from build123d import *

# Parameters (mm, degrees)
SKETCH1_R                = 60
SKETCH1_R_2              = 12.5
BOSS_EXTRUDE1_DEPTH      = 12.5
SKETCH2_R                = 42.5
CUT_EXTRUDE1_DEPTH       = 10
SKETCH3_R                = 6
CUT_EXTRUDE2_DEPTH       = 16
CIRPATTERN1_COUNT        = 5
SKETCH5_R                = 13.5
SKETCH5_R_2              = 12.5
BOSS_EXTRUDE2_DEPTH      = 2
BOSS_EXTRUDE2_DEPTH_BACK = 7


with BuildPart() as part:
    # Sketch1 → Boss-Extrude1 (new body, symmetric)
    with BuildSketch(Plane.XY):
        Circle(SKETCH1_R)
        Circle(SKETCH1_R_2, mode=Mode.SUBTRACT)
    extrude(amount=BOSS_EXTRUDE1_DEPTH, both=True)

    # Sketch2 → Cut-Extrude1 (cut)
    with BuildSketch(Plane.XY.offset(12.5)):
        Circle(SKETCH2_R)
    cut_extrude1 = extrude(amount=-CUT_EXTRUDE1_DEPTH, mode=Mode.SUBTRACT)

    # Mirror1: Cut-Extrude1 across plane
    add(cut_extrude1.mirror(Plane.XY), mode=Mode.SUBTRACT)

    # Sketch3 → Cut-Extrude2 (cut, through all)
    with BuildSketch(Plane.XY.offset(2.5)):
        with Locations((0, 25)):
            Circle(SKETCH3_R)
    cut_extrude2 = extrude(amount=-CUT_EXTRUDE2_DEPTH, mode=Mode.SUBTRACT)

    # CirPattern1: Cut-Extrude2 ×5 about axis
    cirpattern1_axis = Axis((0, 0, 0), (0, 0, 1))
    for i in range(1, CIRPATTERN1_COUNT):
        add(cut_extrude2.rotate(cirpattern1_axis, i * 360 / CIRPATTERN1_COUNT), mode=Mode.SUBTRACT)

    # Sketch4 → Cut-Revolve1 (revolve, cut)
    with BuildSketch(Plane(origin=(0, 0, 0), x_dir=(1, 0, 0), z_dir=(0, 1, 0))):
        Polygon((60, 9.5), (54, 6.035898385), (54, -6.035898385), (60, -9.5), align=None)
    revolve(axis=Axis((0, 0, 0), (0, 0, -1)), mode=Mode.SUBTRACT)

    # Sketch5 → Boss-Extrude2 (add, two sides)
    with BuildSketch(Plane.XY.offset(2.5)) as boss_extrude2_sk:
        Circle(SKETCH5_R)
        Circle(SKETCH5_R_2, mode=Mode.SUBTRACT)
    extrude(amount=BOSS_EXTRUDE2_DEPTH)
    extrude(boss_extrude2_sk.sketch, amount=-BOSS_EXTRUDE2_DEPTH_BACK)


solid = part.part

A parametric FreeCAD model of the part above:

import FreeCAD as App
import Part
import Sketcher
Q = App.Units.Quantity


def add_polygon(sketch, points):
    """Adds a closed chain of lines whose ends are joined by coincident constraints."""
    first, n = sketch.GeometryCount, len(points)
    for a, b in zip(points, points[1:] + points[:1]):
        sketch.addGeometry(Part.LineSegment(App.Vector(*a, 0), App.Vector(*b, 0)), False)
    for i in range(n):
        sketch.addConstraint(Sketcher.Constraint("Coincident", first + i, 2, first + (i + 1) % n, 1))

doc = App.newDocument("Part")
body = doc.addObject("PartDesign::Body", "Body")

sketch1 = doc.addObject("Sketcher::SketchObject", "Sketch")
body.addObject(sketch1)
sketch1.AttachmentSupport = (doc.XY_Plane, [""])
sketch1.MapMode = "FlatFace"
sketch1.addGeometry([
    Part.Circle(App.Vector(0, 0, 0), App.Vector(0, 0, 1), 60),
    Part.Circle(App.Vector(0, 0, 0), App.Vector(0, 0, 1), 12),
], False)
sketch1.addConstraint([
    Sketcher.Constraint("Coincident", 0, 3, -1, 1),
    Sketcher.Constraint("Coincident", 1, 3, -1, 1),
    Sketcher.Constraint("Diameter", 0, 120.0),
    Sketcher.Constraint("Diameter", 1, 25.0),
])
pad1 = doc.addObject("PartDesign::Pad", "Pad")
body.addObject(pad1)
pad1.Profile = sketch1
pad1.Length = 25
pad1.Midplane = True

sketch2 = doc.addObject("Sketcher::SketchObject", "Sketch001")
body.addObject(sketch2)
sketch2.AttachmentSupport = (doc.XY_Plane, [""])
sketch2.MapMode = "FlatFace"
sketch2.AttachmentOffset = App.Placement(App.Vector(0, 0, 12.5), App.Rotation())
sketch2.addGeometry(Part.Circle(App.Vector(0, 0, 0), App.Vector(0, 0, 1), 42), False)
sketch2.addConstraint([
    Sketcher.Constraint("Coincident", 0, 3, -1, 1),
    Sketcher.Constraint("Diameter", 0, 85.0),
])
pocket1 = doc.addObject("PartDesign::Pocket", "Pocket")
body.addObject(pocket1)
pocket1.Profile = sketch2
pocket1.Length = 10
doc.recompute()

mirrored = doc.addObject("PartDesign::Mirrored", "Mirrored")
body.addObject(mirrored)
mirrored.Originals = [pocket1]
mirrored.MirrorPlane = (doc.XY_Plane, [""])
body.Tip = mirrored

sketch3 = doc.addObject("Sketcher::SketchObject", "Sketch002")
body.addObject(sketch3)
sketch3.AttachmentSupport = (doc.XY_Plane, [""])
sketch3.MapMode = "FlatFace"
sketch3.AttachmentOffset = App.Placement(App.Vector(0, 0, 2.5), App.Rotation())
sketch3.addGeometry(Part.Circle(App.Vector(0, 25, 0), App.Vector(0, 0, 1), 6), False)
sketch3.addConstraint([
    Sketcher.Constraint("PointOnObject", 0, 3, -2),
    Sketcher.Constraint("Diameter", 0, 12.0),
    Sketcher.Constraint("DistanceY", -1, 1, 0, 3, 25.0),
])
pocket2 = doc.addObject("PartDesign::Pocket", "Pocket001")
body.addObject(pocket2)
pocket2.Profile = sketch3
pocket2.Type = "ThroughAll"
doc.recompute()

polarpattern = doc.addObject("PartDesign::PolarPattern", "PolarPattern")
body.addObject(polarpattern)
polarpattern.Originals = [pocket2]
polarpattern.Axis = (doc.Z_Axis, [""])
polarpattern.Angle = 360
polarpattern.Occurrences = 5
body.Tip = polarpattern

sketch4 = doc.addObject("Sketcher::SketchObject", "Sketch003")
body.addObject(sketch4)
sketch4.AttachmentSupport = (doc.XZ_Plane, [""])
sketch4.MapMode = "FlatFace"
add_polygon(sketch4, [(60, -10), (54, -6), (54, 6), (60, 10)])
sketch4.addConstraint([
    Sketcher.Constraint("Vertical", 1),
    Sketcher.Constraint("Vertical", 3),
    Sketcher.Constraint("Equal", 0, 2),
    Sketcher.Constraint("DistanceY", 3, 2, 3, 1, 19.0),
    Sketcher.Constraint("Angle", 0, Q("150 deg")),
    Sketcher.Constraint("DistanceX", -1, 1, 0, 2, 54.0),
    Sketcher.Constraint("DistanceX", -1, 1, 2, 2, 60.0),
    Sketcher.Constraint("DistanceY", -1, 1, 2, 2, 9.5),
])
groove = doc.addObject("PartDesign::Groove", "Groove")
body.addObject(groove)
groove.Profile = sketch4
groove.ReferenceAxis = (sketch4, ["V_Axis"])
groove.Angle = 360

sketch5 = doc.addObject("Sketcher::SketchObject", "Sketch004")
body.addObject(sketch5)
sketch5.AttachmentSupport = (doc.XY_Plane, [""])
sketch5.MapMode = "FlatFace"
sketch5.AttachmentOffset = App.Placement(App.Vector(0, 0, 2.5), App.Rotation())
sketch5.addGeometry([
    Part.Circle(App.Vector(0, 0, 0), App.Vector(0, 0, 1), 14),
    Part.Circle(App.Vector(0, 0, 0), App.Vector(0, 0, 1), 12),
], False)
sketch5.addConstraint([
    Sketcher.Constraint("Coincident", 0, 3, -1, 1),
    Sketcher.Constraint("Coincident", 1, 3, -1, 1),
    Sketcher.Constraint("Diameter", 0, 27.0),
    Sketcher.Constraint("Diameter", 1, 25.0),
])
pad2 = doc.addObject("PartDesign::Pad", "Pad001")
body.addObject(pad2)
pad2.Profile = sketch5
pad2.Type = "TwoLengths"
pad2.Length = 2
pad2.Length2 = 7

doc.recompute()
